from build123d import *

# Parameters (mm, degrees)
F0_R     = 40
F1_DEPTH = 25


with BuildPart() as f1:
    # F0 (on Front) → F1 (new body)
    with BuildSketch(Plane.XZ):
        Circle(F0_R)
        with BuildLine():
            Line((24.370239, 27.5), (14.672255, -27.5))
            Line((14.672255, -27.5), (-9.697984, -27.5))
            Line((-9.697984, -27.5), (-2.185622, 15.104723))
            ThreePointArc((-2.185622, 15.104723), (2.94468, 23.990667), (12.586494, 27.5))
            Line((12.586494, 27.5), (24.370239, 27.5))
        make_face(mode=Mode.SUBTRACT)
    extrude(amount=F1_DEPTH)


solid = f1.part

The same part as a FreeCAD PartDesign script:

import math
import FreeCAD as App
import Part
import Sketcher
Q = App.Units.Quantity

doc = App.newDocument("Part")
body = doc.addObject("PartDesign::Body", "Body")

sketch1 = body.newObject("Sketcher::SketchObject", "Sketch")
sketch1.AttachmentSupport = (doc.getObject("XZ_Plane"), [""])
sketch1.MapMode = "FlatFace"
sketch1.addGeometry(Part.Circle(App.Vector(0, 0, 0), App.Vector(0, 0, 1), 40), False)
sketch1.addGeometry(Part.LineSegment(App.Vector(13, 28, 0), App.Vector(24, 28, 0)), False)
sketch1.addGeometry(Part.LineSegment(App.Vector(24, 28, 0), App.Vector(15, -28, 0)), False)
sketch1.addGeometry(Part.LineSegment(App.Vector(15, -28, 0), App.Vector(-10, -28, 0)), False)
sketch1.addGeometry(Part.LineSegment(App.Vector(-10, -28, 0), App.Vector(-2, 15, 0)), False)
sketch1.addGeometry(Part.ArcOfCircle(Part.Circle(App.Vector(13, 13, 0), App.Vector(0, 0, 1), 15), math.radians(90), math.radians(170)), False)
sketch1.addConstraint(Sketcher.Constraint("Coincident", 1, 2, 2, 1))
sketch1.addConstraint(Sketcher.Constraint("Coincident", 2, 2, 3, 1))
sketch1.addConstraint(Sketcher.Constraint("Coincident", 3, 2, 4, 1))
sketch1.addConstraint(Sketcher.Constraint("Tangent", 4, 2, 5, 2))
sketch1.addConstraint(Sketcher.Constraint("Tangent", 5, 1, 1, 1))
sketch1.addConstraint(Sketcher.Constraint("Horizontal", 1))
sketch1.addConstraint(Sketcher.Constraint("Horizontal", 3))
sketch1.addConstraint(Sketcher.Constraint("Coincident", 0, 3, -1, 1))
sketch1.addConstraint(Sketcher.Constraint("Parallel", 2, 4))
sketch1.addConstraint(Sketcher.Constraint("Diameter", 0, 80.0))
sketch1.addConstraint(Sketcher.Constraint("Radius", 5, 14.999999))
sketch1.addConstraint(Sketcher.Constraint("Angle", 2, Q("-100 deg")))
sketch1.addConstraint(Sketcher.Constraint("DistanceY", 2, 2, 5, 3, 40.000001))
sketch1.addConstraint(Sketcher.Constraint("DistanceY", -1, 1, 5, 3, 12.500001))
sketch1.addConstraint(Sketcher.Constraint("DistanceX", 3, 2, 3, 1, 24.370239))
sketch1.addConstraint(Sketcher.Constraint("DistanceX", -1, 1, 1, 2, 24.370239))
pad1 = body.newObject("PartDesign::Pad", "Pad")
pad1.Profile = sketch1
pad1.Length = 25

doc.recompute()
